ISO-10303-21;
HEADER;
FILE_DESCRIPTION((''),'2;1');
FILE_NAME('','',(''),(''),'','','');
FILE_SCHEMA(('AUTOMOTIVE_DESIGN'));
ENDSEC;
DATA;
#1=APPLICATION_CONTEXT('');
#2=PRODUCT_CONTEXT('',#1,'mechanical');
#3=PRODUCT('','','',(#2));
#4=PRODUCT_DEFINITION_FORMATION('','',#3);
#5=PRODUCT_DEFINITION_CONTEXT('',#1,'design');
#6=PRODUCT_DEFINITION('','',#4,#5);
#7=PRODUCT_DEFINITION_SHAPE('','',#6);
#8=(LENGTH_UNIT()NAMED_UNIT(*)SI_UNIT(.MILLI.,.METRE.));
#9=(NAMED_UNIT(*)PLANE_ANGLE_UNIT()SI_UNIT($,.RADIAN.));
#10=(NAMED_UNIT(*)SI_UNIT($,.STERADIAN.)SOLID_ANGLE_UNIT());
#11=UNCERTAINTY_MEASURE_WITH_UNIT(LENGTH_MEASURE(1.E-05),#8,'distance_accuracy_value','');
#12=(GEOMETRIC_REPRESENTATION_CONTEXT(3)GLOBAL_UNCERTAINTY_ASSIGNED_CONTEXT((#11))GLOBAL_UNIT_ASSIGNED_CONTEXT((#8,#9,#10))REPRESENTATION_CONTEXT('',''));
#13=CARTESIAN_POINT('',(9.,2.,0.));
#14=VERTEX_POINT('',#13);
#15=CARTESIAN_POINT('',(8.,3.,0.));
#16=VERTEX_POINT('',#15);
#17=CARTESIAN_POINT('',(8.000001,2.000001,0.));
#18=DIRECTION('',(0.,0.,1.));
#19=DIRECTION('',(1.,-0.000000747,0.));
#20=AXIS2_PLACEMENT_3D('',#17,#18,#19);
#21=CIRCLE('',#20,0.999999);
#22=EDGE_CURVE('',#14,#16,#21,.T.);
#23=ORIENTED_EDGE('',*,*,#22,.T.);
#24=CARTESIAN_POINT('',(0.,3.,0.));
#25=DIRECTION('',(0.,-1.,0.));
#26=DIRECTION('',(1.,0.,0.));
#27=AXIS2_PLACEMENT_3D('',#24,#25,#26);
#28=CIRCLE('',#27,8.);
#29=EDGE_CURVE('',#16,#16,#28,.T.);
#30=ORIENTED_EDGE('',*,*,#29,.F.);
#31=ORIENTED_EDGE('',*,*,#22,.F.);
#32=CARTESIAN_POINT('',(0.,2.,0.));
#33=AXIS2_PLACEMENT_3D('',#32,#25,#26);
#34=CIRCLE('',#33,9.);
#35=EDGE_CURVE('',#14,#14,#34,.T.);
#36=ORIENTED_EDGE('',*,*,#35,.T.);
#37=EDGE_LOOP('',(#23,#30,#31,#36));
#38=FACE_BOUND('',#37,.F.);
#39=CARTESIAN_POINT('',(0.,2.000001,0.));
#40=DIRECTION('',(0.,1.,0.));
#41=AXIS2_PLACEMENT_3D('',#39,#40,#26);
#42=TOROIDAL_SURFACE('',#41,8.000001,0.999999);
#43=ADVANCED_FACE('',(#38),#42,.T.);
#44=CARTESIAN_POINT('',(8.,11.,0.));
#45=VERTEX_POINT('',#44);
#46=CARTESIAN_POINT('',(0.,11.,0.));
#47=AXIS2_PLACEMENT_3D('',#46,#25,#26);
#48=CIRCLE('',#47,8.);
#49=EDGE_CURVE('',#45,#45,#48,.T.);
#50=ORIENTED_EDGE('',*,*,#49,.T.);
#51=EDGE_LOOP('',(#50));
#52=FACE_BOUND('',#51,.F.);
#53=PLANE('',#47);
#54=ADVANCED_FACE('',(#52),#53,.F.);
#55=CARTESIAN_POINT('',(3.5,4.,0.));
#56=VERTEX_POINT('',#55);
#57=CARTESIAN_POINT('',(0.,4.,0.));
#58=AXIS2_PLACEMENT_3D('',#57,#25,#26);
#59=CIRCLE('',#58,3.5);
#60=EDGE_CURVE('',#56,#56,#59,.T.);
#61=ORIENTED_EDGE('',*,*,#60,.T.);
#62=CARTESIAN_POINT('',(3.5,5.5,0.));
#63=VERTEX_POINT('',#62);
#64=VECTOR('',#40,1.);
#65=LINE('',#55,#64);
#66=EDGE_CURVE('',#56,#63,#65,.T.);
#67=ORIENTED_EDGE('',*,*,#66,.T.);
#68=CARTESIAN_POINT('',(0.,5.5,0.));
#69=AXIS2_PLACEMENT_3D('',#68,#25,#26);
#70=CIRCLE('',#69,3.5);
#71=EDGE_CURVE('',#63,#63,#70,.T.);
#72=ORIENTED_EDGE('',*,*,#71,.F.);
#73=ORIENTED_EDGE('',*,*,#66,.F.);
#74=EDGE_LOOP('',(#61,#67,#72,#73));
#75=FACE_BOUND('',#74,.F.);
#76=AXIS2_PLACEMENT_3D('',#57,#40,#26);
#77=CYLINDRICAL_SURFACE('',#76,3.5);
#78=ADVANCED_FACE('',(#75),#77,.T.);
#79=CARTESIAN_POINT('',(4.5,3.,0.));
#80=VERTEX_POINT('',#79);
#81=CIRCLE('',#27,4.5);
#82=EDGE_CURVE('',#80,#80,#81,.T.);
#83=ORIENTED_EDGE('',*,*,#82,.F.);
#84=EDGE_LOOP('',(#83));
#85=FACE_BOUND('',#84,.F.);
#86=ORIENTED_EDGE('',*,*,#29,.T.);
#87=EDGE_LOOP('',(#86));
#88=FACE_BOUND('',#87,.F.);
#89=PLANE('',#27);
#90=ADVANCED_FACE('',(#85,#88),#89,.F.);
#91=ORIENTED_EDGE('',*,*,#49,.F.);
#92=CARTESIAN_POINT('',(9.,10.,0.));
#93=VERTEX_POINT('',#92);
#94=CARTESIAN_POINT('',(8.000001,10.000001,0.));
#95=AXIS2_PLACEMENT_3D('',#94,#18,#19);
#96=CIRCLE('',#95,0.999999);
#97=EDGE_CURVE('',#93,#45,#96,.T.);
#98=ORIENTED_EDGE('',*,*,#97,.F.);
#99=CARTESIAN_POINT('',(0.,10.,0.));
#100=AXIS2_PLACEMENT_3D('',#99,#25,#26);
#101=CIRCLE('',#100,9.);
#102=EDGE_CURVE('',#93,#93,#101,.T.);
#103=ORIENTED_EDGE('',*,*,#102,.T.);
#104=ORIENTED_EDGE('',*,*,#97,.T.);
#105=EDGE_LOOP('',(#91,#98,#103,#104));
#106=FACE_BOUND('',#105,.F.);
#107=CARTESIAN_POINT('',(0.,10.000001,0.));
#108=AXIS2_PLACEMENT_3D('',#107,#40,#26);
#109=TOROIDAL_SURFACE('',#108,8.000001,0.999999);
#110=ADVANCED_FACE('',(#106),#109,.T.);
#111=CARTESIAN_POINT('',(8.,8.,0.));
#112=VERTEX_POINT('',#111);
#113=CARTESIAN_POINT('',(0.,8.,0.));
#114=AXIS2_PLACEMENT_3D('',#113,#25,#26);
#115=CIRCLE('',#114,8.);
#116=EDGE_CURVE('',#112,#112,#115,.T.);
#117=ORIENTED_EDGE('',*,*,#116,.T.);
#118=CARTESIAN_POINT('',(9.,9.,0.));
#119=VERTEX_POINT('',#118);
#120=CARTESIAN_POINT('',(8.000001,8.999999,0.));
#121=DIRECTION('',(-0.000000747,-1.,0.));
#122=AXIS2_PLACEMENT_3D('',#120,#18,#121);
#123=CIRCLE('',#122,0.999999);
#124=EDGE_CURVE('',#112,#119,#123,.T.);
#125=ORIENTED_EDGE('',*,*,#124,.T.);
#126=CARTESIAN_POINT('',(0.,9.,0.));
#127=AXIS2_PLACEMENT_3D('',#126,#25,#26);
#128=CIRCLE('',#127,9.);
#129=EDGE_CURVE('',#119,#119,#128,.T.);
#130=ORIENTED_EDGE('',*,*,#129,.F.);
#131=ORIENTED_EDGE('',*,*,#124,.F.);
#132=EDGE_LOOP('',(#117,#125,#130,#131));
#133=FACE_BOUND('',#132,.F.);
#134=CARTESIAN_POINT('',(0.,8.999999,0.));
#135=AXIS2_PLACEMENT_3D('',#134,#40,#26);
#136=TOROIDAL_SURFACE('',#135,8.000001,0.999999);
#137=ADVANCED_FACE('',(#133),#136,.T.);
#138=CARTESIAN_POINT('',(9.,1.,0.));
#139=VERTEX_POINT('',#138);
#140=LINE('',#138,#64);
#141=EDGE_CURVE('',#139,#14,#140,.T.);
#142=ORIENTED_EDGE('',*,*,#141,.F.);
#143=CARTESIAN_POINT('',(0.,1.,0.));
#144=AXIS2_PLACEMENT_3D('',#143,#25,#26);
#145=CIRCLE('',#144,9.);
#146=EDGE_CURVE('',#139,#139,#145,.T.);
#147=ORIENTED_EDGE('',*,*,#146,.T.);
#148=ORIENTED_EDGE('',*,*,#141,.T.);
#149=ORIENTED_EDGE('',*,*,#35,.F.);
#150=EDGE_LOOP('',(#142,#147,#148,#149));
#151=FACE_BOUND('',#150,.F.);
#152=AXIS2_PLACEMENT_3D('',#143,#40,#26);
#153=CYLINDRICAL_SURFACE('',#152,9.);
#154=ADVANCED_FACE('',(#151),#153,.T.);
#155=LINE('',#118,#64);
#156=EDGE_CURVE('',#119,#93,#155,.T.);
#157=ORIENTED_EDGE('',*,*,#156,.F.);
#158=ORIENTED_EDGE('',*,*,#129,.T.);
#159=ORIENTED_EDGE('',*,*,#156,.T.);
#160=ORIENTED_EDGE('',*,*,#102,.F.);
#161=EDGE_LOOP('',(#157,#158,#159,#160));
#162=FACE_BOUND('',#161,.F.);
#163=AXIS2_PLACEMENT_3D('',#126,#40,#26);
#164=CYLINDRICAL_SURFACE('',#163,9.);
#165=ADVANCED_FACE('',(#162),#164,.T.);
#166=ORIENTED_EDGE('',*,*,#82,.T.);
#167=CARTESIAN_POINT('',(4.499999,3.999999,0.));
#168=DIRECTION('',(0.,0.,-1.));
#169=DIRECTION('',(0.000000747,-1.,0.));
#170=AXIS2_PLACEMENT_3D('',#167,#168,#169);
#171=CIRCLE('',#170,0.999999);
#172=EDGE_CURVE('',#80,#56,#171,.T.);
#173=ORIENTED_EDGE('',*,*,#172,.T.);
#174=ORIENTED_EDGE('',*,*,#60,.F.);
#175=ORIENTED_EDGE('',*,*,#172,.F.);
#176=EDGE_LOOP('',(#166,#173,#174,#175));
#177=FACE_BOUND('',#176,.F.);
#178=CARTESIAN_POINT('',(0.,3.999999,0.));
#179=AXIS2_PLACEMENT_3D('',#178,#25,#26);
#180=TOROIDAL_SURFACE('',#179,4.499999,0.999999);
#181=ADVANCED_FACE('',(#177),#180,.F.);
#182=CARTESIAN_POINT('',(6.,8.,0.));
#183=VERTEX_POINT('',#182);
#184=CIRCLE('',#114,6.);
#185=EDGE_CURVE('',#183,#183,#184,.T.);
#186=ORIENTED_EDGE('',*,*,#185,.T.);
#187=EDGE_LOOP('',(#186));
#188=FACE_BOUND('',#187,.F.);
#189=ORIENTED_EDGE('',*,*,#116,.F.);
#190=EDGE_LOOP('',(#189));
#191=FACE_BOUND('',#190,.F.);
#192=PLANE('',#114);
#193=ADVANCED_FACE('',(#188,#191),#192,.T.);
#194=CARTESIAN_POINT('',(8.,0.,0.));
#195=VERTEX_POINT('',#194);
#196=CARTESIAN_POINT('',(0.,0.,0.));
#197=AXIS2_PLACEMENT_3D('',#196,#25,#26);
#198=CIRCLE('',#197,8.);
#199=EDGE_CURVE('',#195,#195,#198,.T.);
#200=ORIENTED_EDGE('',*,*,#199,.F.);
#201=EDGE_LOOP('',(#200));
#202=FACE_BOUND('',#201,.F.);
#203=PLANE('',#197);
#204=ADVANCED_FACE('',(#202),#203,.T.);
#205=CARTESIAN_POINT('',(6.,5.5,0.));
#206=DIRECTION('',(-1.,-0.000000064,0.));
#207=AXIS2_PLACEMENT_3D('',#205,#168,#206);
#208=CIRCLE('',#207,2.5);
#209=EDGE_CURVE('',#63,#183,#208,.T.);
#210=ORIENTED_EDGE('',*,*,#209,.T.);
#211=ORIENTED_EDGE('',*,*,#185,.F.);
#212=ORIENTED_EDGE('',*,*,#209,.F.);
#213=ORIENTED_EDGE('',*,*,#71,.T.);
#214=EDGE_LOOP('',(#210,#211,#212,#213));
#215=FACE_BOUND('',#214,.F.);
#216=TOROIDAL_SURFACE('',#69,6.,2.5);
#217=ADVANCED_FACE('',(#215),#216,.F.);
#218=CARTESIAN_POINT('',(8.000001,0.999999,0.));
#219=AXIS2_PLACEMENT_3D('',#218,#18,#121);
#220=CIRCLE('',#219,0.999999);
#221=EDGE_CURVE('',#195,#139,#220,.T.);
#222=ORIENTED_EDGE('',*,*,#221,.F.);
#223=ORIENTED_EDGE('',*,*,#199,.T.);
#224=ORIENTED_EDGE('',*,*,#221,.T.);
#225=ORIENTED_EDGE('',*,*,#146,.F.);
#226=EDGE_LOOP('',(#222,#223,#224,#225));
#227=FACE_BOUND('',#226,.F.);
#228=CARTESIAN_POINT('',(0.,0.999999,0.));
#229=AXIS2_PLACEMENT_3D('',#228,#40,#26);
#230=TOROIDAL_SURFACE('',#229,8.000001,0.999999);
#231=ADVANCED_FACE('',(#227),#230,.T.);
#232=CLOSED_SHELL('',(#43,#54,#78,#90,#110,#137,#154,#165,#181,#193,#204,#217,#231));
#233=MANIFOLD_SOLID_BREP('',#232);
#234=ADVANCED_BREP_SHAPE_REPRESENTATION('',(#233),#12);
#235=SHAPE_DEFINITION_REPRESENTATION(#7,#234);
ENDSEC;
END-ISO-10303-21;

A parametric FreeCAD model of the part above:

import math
import FreeCAD as App
import Part
import Sketcher

V = App.Vector

doc = App.newDocument("Part")
body = doc.addObject("PartDesign::Body", "Body")

# Sketch on XY plane
sketch1 = body.newObject("Sketcher::SketchObject", "Sketch")
sketch1.AttachmentSupport = (doc.getObject("XY_Plane"), [""])
sketch1.MapMode = "FlatFace"
sketch1.addGeometry(Part.LineSegment(V(0, 11, 0), V(0, 0, 0)), False)
sketch1.addGeometry(Part.LineSegment(V(0, 0, 0), V(8, 0, 0)), False)
sketch1.addGeometry(Part.ArcOfCircle(Part.Circle(V(8, 1, 0), V(0, 0, 1), 1), math.radians(-90), math.radians(0)), False)
sketch1.addGeometry(Part.LineSegment(V(9, 1, 0), V(9, 2, 0)), False)
sketch1.addGeometry(Part.ArcOfCircle(Part.Circle(V(8, 2, 0), V(0, 0, 1), 1), math.radians(0), math.radians(90)), False)
sketch1.addGeometry(Part.LineSegment(V(8, 3, 0), V(4.5, 3, 0)), False)
sketch1.addGeometry(Part.ArcOfCircle(Part.Circle(V(4.5, 4, 0), V(0, 0, 1), 1), math.radians(180), math.radians(270)), False)
sketch1.addGeometry(Part.LineSegment(V(3.5, 4, 0), V(3.5, 5.5, 0)), False)
sketch1.addGeometry(Part.ArcOfCircle(Part.Circle(V(6, 5.5, 0), V(0, 0, 1), 2.5), math.radians(90), math.radians(180)), False)
sketch1.addGeometry(Part.LineSegment(V(6, 8, 0), V(8, 8, 0)), False)
sketch1.addGeometry(Part.ArcOfCircle(Part.Circle(V(8, 9, 0), V(0, 0, 1), 1), math.radians(-90), math.radians(0)), False)
sketch1.addGeometry(Part.LineSegment(V(9, 9, 0), V(9, 10, 0)), False)
sketch1.addGeometry(Part.ArcOfCircle(Part.Circle(V(8, 10, 0), V(0, 0, 1), 1), math.radians(0), math.radians(90)), False)
sketch1.addGeometry(Part.LineSegment(V(8, 11, 0), V(0, 11, 0)), False)
sketch1.addConstraint(Sketcher.Constraint("Coincident", 0, 2, 1, 1))
sketch1.addConstraint(Sketcher.Constraint("Tangent", 1, 2, 2, 1))
sketch1.addConstraint(Sketcher.Constraint("Tangent", 2, 2, 3, 1))
sketch1.addConstraint(Sketcher.Constraint("Tangent", 3, 2, 4, 1))
sketch1.addConstraint(Sketcher.Constraint("Tangent", 4, 2, 5, 1))
sketch1.addConstraint(Sketcher.Constraint("Tangent", 5, 2, 6, 2))
sketch1.addConstraint(Sketcher.Constraint("Tangent", 6, 1, 7, 1))
sketch1.addConstraint(Sketcher.Constraint("Tangent", 7, 2, 8, 2))
sketch1.addConstraint(Sketcher.Constraint("Tangent", 8, 1, 9, 1))
sketch1.addConstraint(Sketcher.Constraint("Tangent", 9, 2, 10, 1))
sketch1.addConstraint(Sketcher.Constraint("Tangent", 10, 2, 11, 1))
sketch1.addConstraint(Sketcher.Constraint("Tangent", 11, 2, 12, 1))
sketch1.addConstraint(Sketcher.Constraint("Tangent", 12, 2, 13, 1))
sketch1.addConstraint(Sketcher.Constraint("Coincident", 13, 2, 0, 1))
sketch1.addConstraint(Sketcher.Constraint("Vertical", 0))
sketch1.addConstraint(Sketcher.Constraint("Horizontal", 1))
sketch1.addConstraint(Sketcher.Constraint("Vertical", 3))
sketch1.addConstraint(Sketcher.Constraint("Horizontal", 5))
sketch1.addConstraint(Sketcher.Constraint("Vertical", 7))
sketch1.addConstraint(Sketcher.Constraint("Horizontal", 9))
sketch1.addConstraint(Sketcher.Constraint("Vertical", 11))
sketch1.addConstraint(Sketcher.Constraint("Horizontal", 13))
sketch1.addConstraint(Sketcher.Constraint("Coincident", 0, 2, -1, 1))
sketch1.addConstraint(Sketcher.Constraint("Equal", 2, 4))
sketch1.addConstraint(Sketcher.Constraint("Equal", 4, 6))
sketch1.addConstraint(Sketcher.Constraint("Equal", 6, 10))
sketch1.addConstraint(Sketcher.Constraint("Equal", 10, 12))
sketch1.addConstraint(Sketcher.Constraint("Vertical", 4, 3, 10, 3))
sketch1.addConstraint(Sketcher.Constraint("Equal", 3, 11))
sketch1.addConstraint(Sketcher.Constraint("Radius", 2, 0.999999))
sketch1.addConstraint(Sketcher.Constraint("Radius", 8, 2.5))
sketch1.addConstraint(Sketcher.Constraint("DistanceX", 1, 1, 1, 2, 8.0))
sketch1.addConstraint(Sketcher.Constraint("DistanceX", 9, 1, 9, 2, 2.0))
sketch1.addConstraint(Sketcher.Constraint("DistanceY", 0, 2, 0, 1, 11.0))
sketch1.addConstraint(Sketcher.Constraint("DistanceY", 3, 1, 3, 2, 1.0))
revolution = body.newObject("PartDesign::Revolution", "Revolution")
revolution.Profile = sketch1
revolution.ReferenceAxis = (sketch1, ["V_Axis"])
revolution.Angle = 360

doc.recompute()
